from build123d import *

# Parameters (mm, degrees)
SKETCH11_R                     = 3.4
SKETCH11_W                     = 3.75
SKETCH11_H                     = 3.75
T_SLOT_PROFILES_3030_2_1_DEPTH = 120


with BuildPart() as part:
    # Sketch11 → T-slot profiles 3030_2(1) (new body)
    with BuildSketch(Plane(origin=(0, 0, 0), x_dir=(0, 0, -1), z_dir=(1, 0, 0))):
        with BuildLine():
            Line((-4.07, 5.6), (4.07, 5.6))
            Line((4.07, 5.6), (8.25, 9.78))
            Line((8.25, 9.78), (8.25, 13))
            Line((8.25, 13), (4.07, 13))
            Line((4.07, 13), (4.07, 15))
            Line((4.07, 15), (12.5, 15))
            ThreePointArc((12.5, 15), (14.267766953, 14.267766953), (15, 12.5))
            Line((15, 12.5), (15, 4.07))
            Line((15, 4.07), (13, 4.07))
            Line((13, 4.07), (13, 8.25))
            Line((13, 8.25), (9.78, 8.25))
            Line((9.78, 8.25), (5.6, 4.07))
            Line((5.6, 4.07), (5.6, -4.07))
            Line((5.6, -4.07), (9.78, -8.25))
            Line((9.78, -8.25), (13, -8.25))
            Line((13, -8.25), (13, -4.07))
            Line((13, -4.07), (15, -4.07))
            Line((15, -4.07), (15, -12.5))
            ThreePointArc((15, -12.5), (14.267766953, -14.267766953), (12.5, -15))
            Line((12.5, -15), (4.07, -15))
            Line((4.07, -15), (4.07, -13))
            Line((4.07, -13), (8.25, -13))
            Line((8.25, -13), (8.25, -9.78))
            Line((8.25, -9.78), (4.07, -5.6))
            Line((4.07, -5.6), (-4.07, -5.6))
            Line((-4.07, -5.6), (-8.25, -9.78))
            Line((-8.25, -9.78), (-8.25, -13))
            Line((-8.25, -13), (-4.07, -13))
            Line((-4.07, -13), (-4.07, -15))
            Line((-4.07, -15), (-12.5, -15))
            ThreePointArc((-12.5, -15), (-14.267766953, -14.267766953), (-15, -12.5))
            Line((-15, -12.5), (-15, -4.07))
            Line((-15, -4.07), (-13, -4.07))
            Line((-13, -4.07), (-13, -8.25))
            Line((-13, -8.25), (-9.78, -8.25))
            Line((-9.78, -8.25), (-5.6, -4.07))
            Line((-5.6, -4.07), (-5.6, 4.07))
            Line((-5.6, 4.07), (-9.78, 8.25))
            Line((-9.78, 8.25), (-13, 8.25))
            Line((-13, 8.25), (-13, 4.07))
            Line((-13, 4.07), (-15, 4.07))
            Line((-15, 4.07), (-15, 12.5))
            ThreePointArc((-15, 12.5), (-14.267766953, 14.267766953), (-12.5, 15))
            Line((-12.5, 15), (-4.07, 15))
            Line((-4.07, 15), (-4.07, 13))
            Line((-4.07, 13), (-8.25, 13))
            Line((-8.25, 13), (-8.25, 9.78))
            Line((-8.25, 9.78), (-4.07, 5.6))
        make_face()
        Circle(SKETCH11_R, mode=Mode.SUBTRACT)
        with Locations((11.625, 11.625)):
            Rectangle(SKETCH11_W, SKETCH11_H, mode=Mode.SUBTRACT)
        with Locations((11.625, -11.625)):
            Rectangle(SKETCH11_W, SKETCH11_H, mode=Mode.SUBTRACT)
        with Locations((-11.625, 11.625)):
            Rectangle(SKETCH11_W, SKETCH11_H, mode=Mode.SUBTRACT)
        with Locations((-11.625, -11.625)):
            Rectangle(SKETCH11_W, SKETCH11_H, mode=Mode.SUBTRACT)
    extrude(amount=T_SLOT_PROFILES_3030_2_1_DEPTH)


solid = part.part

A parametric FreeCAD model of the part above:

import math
import FreeCAD as App
import Part
import Sketcher
from FreeCAD import Vector

doc = App.newDocument("Part")
body = doc.addObject("PartDesign::Body", "Body")

# Sketch on YZ plane
sketch1 = body.newObject("Sketcher::SketchObject", "Sketch")
sketch1.AttachmentSupport = (doc.getObject("YZ_Plane"), [""])
sketch1.MapMode = "FlatFace"
sketch1.addGeometry(Part.LineSegment(Vector(5.6, -4.1, 0), Vector(5.6, 4.1, 0)), False)
sketch1.addGeometry(Part.LineSegment(Vector(5.6, 4.1, 0), Vector(9.8, 8.2, 0)), False)
sketch1.addGeometry(Part.LineSegment(Vector(9.8, 8.2, 0), Vector(13, 8.2, 0)), False)
sketch1.addGeometry(Part.LineSegment(Vector(13, 8.2, 0), Vector(13, 4.1, 0)), False)
sketch1.addGeometry(Part.LineSegment(Vector(13, 4.1, 0), Vector(15, 4.1, 0)), False)
sketch1.addGeometry(Part.LineSegment(Vector(15, 4.1, 0), Vector(15, 12.5, 0)), False)
sketch1.addGeometry(Part.ArcOfCircle(Part.Circle(Vector(12.5, 12.5, 0), Vector(0, 0, 1), 2.5), math.radians(0), math.radians(90)), False)
sketch1.addGeometry(Part.LineSegment(Vector(12.5, 15, 0), Vector(4.1, 15, 0)), False)
sketch1.addGeometry(Part.LineSegment(Vector(4.1, 15, 0), Vector(4.1, 13, 0)), False)
sketch1.addGeometry(Part.LineSegment(Vector(4.1, 13, 0), Vector(8.2, 13, 0)), False)
sketch1.addGeometry(Part.LineSegment(Vector(8.2, 13, 0), Vector(8.2, 9.8, 0)), False)
sketch1.addGeometry(Part.LineSegment(Vector(8.2, 9.8, 0), Vector(4.1, 5.6, 0)), False)
sketch1.addGeometry(Part.LineSegment(Vector(4.1, 5.6, 0), Vector(-4.1, 5.6, 0)), False)
sketch1.addGeometry(Part.LineSegment(Vector(-4.1, 5.6, 0), Vector(-8.2, 9.8, 0)), False)
sketch1.addGeometry(Part.LineSegment(Vector(-8.2, 9.8, 0), Vector(-8.2, 13, 0)), False)
sketch1.addGeometry(Part.LineSegment(Vector(-8.2, 13, 0), Vector(-4.1, 13, 0)), False)
sketch1.addGeometry(Part.LineSegment(Vector(-4.1, 13, 0), Vector(-4.1, 15, 0)), False)
sketch1.addGeometry(Part.LineSegment(Vector(-4.1, 15, 0), Vector(-12.5, 15, 0)), False)
sketch1.addGeometry(Part.ArcOfCircle(Part.Circle(Vector(-12.5, 12.5, 0), Vector(0, 0, 1), 2.5), math.radians(90), math.radians(180)), False)
sketch1.addGeometry(Part.LineSegment(Vector(-15, 12.5, 0), Vector(-15, 4.1, 0)), False)
sketch1.addGeometry(Part.LineSegment(Vector(-15, 4.1, 0), Vector(-13, 4.1, 0)), False)
sketch1.addGeometry(Part.LineSegment(Vector(-13, 4.1, 0), Vector(-13, 8.2, 0)), False)
sketch1.addGeometry(Part.LineSegment(Vector(-13, 8.2, 0), Vector(-9.8, 8.2, 0)), False)
sketch1.addGeometry(Part.LineSegment(Vector(-9.8, 8.2, 0), Vector(-5.6, 4.1, 0)), False)
sketch1.addGeometry(Part.LineSegment(Vector(-5.6, 4.1, 0), Vector(-5.6, -4.1, 0)), False)
sketch1.addGeometry(Part.LineSegment(Vector(-5.6, -4.1, 0), Vector(-9.8, -8.2, 0)), False)
sketch1.addGeometry(Part.LineSegment(Vector(-9.8, -8.2, 0), Vector(-13, -8.2, 0)), False)
sketch1.addGeometry(Part.LineSegment(Vector(-13, -8.2, 0), Vector(-13, -4.1, 0)), False)
sketch1.addGeometry(Part.LineSegment(Vector(-13, -4.1, 0), Vector(-15, -4.1, 0)), False)
sketch1.addGeometry(Part.LineSegment(Vector(-15, -4.1, 0), Vector(-15, -12.5, 0)), False)
sketch1.addGeometry(Part.ArcOfCircle(Part.Circle(Vector(-12.5, -12.5, 0), Vector(0, 0, 1), 2.5), math.radians(180), math.radians(270)), False)
sketch1.addGeometry(Part.LineSegment(Vector(-12.5, -15, 0), Vector(-4.1, -15, 0)), False)
sketch1.addGeometry(Part.LineSegment(Vector(-4.1, -15, 0), Vector(-4.1, -13, 0)), False)
sketch1.addGeometry(Part.LineSegment(Vector(-4.1, -13, 0), Vector(-8.2, -13, 0)), False)
sketch1.addGeometry(Part.LineSegment(Vector(-8.2, -13, 0), Vector(-8.2, -9.8, 0)), False)
sketch1.addGeometry(Part.LineSegment(Vector(-8.2, -9.8, 0), Vector(-4.1, -5.6, 0)), False)
sketch1.addGeometry(Part.LineSegment(Vector(-4.1, -5.6, 0), Vector(4.1, -5.6, 0)), False)
sketch1.addGeometry(Part.LineSegment(Vector(4.1, -5.6, 0), Vector(8.2, -9.8, 0)), False)
sketch1.addGeometry(Part.LineSegment(Vector(8.2, -9.8, 0), Vector(8.2, -13, 0)), False)
sketch1.addGeometry(Part.LineSegment(Vector(8.2, -13, 0), Vector(4.1, -13, 0)), False)
sketch1.addGeometry(Part.LineSegment(Vector(4.1, -13, 0), Vector(4.1, -15, 0)), False)
sketch1.addGeometry(Part.LineSegment(Vector(4.1, -15, 0), Vector(12.5, -15, 0)), False)
sketch1.addGeometry(Part.ArcOfCircle(Part.Circle(Vector(12.5, -12.5, 0), Vector(0, 0, 1), 2.5), math.radians(-90), math.radians(0)), False)
sketch1.addGeometry(Part.LineSegment(Vector(15, -12.5, 0), Vector(15, -4.1, 0)), False)
sketch1.addGeometry(Part.LineSegment(Vector(15, -4.1, 0), Vector(13, -4.1, 0)), False)
sketch1.addGeometry(Part.LineSegment(Vector(13, -4.1, 0), Vector(13, -8.2, 0)), False)
sketch1.addGeometry(Part.LineSegment(Vector(13, -8.2, 0), Vector(9.8, -8.2, 0)), False)
sketch1.addGeometry(Part.LineSegment(Vector(9.8, -8.2, 0), Vector(5.6, -4.1, 0)), False)
sketch1.addGeometry(Part.LineSegment(Vector(-13.5, -9.8, 0), Vector(-9.8, -9.8, 0)), False)
sketch1.addGeometry(Part.LineSegment(Vector(-9.8, -9.8, 0), Vector(-9.8, -13.5, 0)), False)
sketch1.addGeometry(Part.LineSegment(Vector(-9.8, -13.5, 0), Vector(-13.5, -13.5, 0)), False)
sketch1.addGeometry(Part.LineSegment(Vector(-13.5, -13.5, 0), Vector(-13.5, -9.8, 0)), False)
sketch1.addGeometry(Part.LineSegment(Vector(-13.5, 13.5, 0), Vector(-9.8, 13.5, 0)), False)
sketch1.addGeometry(Part.LineSegment(Vector(-9.8, 13.5, 0), Vector(-9.8, 9.8, 0)), False)
sketch1.addGeometry(Part.LineSegment(Vector(-9.8, 9.8, 0), Vector(-13.5, 9.8, 0)), False)
sketch1.addGeometry(Part.LineSegment(Vector(-13.5, 9.8, 0), Vector(-13.5, 13.5, 0)), False)
sketch1.addGeometry(Part.LineSegment(Vector(9.8, -9.8, 0), Vector(13.5, -9.8, 0)), False)
sketch1.addGeometry(Part.LineSegment(Vector(13.5, -9.8, 0), Vector(13.5, -13.5, 0)), False)
sketch1.addGeometry(Part.LineSegment(Vector(13.5, -13.5, 0), Vector(9.8, -13.5, 0)), False)
sketch1.addGeometry(Part.LineSegment(Vector(9.8, -13.5, 0), Vector(9.8, -9.8, 0)), False)
sketch1.addGeometry(Part.Circle(Vector(0, 0, 0), Vector(0, 0, 1), 3.4), False)
sketch1.addGeometry(Part.LineSegment(Vector(9.8, 13.5, 0), Vector(13.5, 13.5, 0)), False)
sketch1.addGeometry(Part.LineSegment(Vector(13.5, 13.5, 0), Vector(13.5, 9.8, 0)), False)
sketch1.addGeometry(Part.LineSegment(Vector(13.5, 9.8, 0), Vector(9.8, 9.8, 0)), False)
sketch1.addGeometry(Part.LineSegment(Vector(9.8, 9.8, 0), Vector(9.8, 13.5, 0)), False)
sketch1.addConstraint(Sketcher.Constraint("Coincident", 0, 2, 1, 1))
sketch1.addConstraint(Sketcher.Constraint("Coincident", 1, 2, 2, 1))
sketch1.addConstraint(Sketcher.Constraint("Coincident", 2, 2, 3, 1))
sketch1.addConstraint(Sketcher.Constraint("Coincident", 3, 2, 4, 1))
sketch1.addConstraint(Sketcher.Constraint("Coincident", 4, 2, 5, 1))
sketch1.addConstraint(Sketcher.Constraint("Tangent", 5, 2, 6, 1))
sketch1.addConstraint(Sketcher.Constraint("Tangent", 6, 2, 7, 1))
sketch1.addConstraint(Sketcher.Constraint("Coincident", 7, 2, 8, 1))
sketch1.addConstraint(Sketcher.Constraint("Coincident", 8, 2, 9, 1))
sketch1.addConstraint(Sketcher.Constraint("Coincident", 9, 2, 10, 1))
sketch1.addConstraint(Sketcher.Constraint("Coincident", 10, 2, 11, 1))
sketch1.addConstraint(Sketcher.Constraint("Coincident", 11, 2, 12, 1))
sketch1.addConstraint(Sketcher.Constraint("Coincident", 12, 2, 13, 1))
sketch1.addConstraint(Sketcher.Constraint("Coincident", 13, 2, 14, 1))
sketch1.addConstraint(Sketcher.Constraint("Coincident", 14, 2, 15, 1))
sketch1.addConstraint(Sketcher.Constraint("Coincident", 15, 2, 16, 1))
sketch1.addConstraint(Sketcher.Constraint("Coincident", 16, 2, 17, 1))
sketch1.addConstraint(Sketcher.Constraint("Tangent", 17, 2, 18, 1))
sketch1.addConstraint(Sketcher.Constraint("Tangent", 18, 2, 19, 1))
sketch1.addConstraint(Sketcher.Constraint("Coincident", 19, 2, 20, 1))
sketch1.addConstraint(Sketcher.Constraint("Coincident", 20, 2, 21, 1))
sketch1.addConstraint(Sketcher.Constraint("Coincident", 21, 2, 22, 1))
sketch1.addConstraint(Sketcher.Constraint("Coincident", 22, 2, 23, 1))
sketch1.addConstraint(Sketcher.Constraint("Coincident", 23, 2, 24, 1))
sketch1.addConstraint(Sketcher.Constraint("Coincident", 24, 2, 25, 1))
sketch1.addConstraint(Sketcher.Constraint("Coincident", 25, 2, 26, 1))
sketch1.addConstraint(Sketcher.Constraint("Coincident", 26, 2, 27, 1))
sketch1.addConstraint(Sketcher.Constraint("Coincident", 27, 2, 28, 1))
sketch1.addConstraint(Sketcher.Constraint("Coincident", 28, 2, 29, 1))
sketch1.addConstraint(Sketcher.Constraint("Tangent", 29, 2, 30, 1))
sketch1.addConstraint(Sketcher.Constraint("Tangent", 30, 2, 31, 1))
sketch1.addConstraint(Sketcher.Constraint("Coincident", 31, 2, 32, 1))
sketch1.addConstraint(Sketcher.Constraint("Coincident", 32, 2, 33, 1))
sketch1.addConstraint(Sketcher.Constraint("Coincident", 33, 2, 34, 1))
sketch1.addConstraint(Sketcher.Constraint("Coincident", 34, 2, 35, 1))
sketch1.addConstraint(Sketcher.Constraint("Coincident", 35, 2, 36, 1))
sketch1.addConstraint(Sketcher.Constraint("Coincident", 36, 2, 37, 1))
sketch1.addConstraint(Sketcher.Constraint("Coincident", 37, 2, 38, 1))
sketch1.addConstraint(Sketcher.Constraint("Coincident", 38, 2, 39, 1))
sketch1.addConstraint(Sketcher.Constraint("Coincident", 39, 2, 40, 1))
sketch1.addConstraint(Sketcher.Constraint("Coincident", 40, 2, 41, 1))
sketch1.addConstraint(Sketcher.Constraint("Tangent", 41, 2, 42, 1))
sketch1.addConstraint(Sketcher.Constraint("Tangent", 42, 2, 43, 1))
sketch1.addConstraint(Sketcher.Constraint("Coincident", 43, 2, 44, 1))
sketch1.addConstraint(Sketcher.Constraint("Coincident", 44, 2, 45, 1))
sketch1.addConstraint(Sketcher.Constraint("Coincident", 45, 2, 46, 1))
sketch1.addConstraint(Sketcher.Constraint("Coincident", 46, 2, 47, 1))
sketch1.addConstraint(Sketcher.Constraint("Coincident", 47, 2, 0, 1))
sketch1.addConstraint(Sketcher.Constraint("Coincident", 48, 2, 49, 1))
sketch1.addConstraint(Sketcher.Constraint("Coincident", 49, 2, 50, 1))
sketch1.addConstraint(Sketcher.Constraint("Coincident", 50, 2, 51, 1))
sketch1.addConstraint(Sketcher.Constraint("Coincident", 51, 2, 48, 1))
sketch1.addConstraint(Sketcher.Constraint("Coincident", 52, 2, 53, 1))
sketch1.addConstraint(Sketcher.Constraint("Coincident", 53, 2, 54, 1))
sketch1.addConstraint(Sketcher.Constraint("Coincident", 54, 2, 55, 1))
sketch1.addConstraint(Sketcher.Constraint("Coincident", 55, 2, 52, 1))
sketch1.addConstraint(Sketcher.Constraint("Coincident", 56, 2, 57, 1))
sketch1.addConstraint(Sketcher.Constraint("Coincident", 57, 2, 58, 1))
sketch1.addConstraint(Sketcher.Constraint("Coincident", 58, 2, 59, 1))
sketch1.addConstraint(Sketcher.Constraint("Coincident", 59, 2, 56, 1))
sketch1.addConstraint(Sketcher.Constraint("Coincident", 61, 2, 62, 1))
sketch1.addConstraint(Sketcher.Constraint("Coincident", 62, 2, 63, 1))
sketch1.addConstraint(Sketcher.Constraint("Coincident", 63, 2, 64, 1))
sketch1.addConstraint(Sketcher.Constraint("Coincident", 64, 2, 61, 1))
sketch1.addConstraint(Sketcher.Constraint("Vertical", 0))
sketch1.addConstraint(Sketcher.Constraint("Horizontal", 2))
sketch1.addConstraint(Sketcher.Constraint("Vertical", 3))
sketch1.addConstraint(Sketcher.Constraint("Horizontal", 4))
sketch1.addConstraint(Sketcher.Constraint("Vertical", 5))
sketch1.addConstraint(Sketcher.Constraint("Horizontal", 7))
sketch1.addConstraint(Sketcher.Constraint("Vertical", 8))
sketch1.addConstraint(Sketcher.Constraint("Horizontal", 9))
sketch1.addConstraint(Sketcher.Constraint("Vertical", 10))
sketch1.addConstraint(Sketcher.Constraint("Horizontal", 12))
sketch1.addConstraint(Sketcher.Constraint("Vertical", 14))
sketch1.addConstraint(Sketcher.Constraint("Horizontal", 15))
sketch1.addConstraint(Sketcher.Constraint("Vertical", 16))
sketch1.addConstraint(Sketcher.Constraint("Horizontal", 17))
sketch1.addConstraint(Sketcher.Constraint("Vertical", 19))
sketch1.addConstraint(Sketcher.Constraint("Horizontal", 20))
sketch1.addConstraint(Sketcher.Constraint("Vertical", 21))
sketch1.addConstraint(Sketcher.Constraint("Horizontal", 22))
sketch1.addConstraint(Sketcher.Constraint("Vertical", 24))
sketch1.addConstraint(Sketcher.Constraint("Horizontal", 26))
sketch1.addConstraint(Sketcher.Constraint("Vertical", 27))
sketch1.addConstraint(Sketcher.Constraint("Horizontal", 28))
sketch1.addConstraint(Sketcher.Constraint("Vertical", 29))
sketch1.addConstraint(Sketcher.Constraint("Horizontal", 31))
sketch1.addConstraint(Sketcher.Constraint("Vertical", 32))
sketch1.addConstraint(Sketcher.Constraint("Horizontal", 33))
sketch1.addConstraint(Sketcher.Constraint("Vertical", 34))
sketch1.addConstraint(Sketcher.Constraint("Horizontal", 36))
sketch1.addConstraint(Sketcher.Constraint("Vertical", 38))
sketch1.addConstraint(Sketcher.Constraint("Horizontal", 39))
sketch1.addConstraint(Sketcher.Constraint("Vertical", 40))
sketch1.addConstraint(Sketcher.Constraint("Horizontal", 41))
sketch1.addConstraint(Sketcher.Constraint("Vertical", 43))
sketch1.addConstraint(Sketcher.Constraint("Horizontal", 44))
sketch1.addConstraint(Sketcher.Constraint("Vertical", 45))
sketch1.addConstraint(Sketcher.Constraint("Horizontal", 46))
sketch1.addConstraint(Sketcher.Constraint("Horizontal", 48))
sketch1.addConstraint(Sketcher.Constraint("Vertical", 49))
sketch1.addConstraint(Sketcher.Constraint("Horizontal", 50))
sketch1.addConstraint(Sketcher.Constraint("Vertical", 51))
sketch1.addConstraint(Sketcher.Constraint("Horizontal", 52))
sketch1.addConstraint(Sketcher.Constraint("Vertical", 53))
sketch1.addConstraint(Sketcher.Constraint("Horizontal", 54))
sketch1.addConstraint(Sketcher.Constraint("Vertical", 55))
sketch1.addConstraint(Sketcher.Constraint("Horizontal", 56))
sketch1.addConstraint(Sketcher.Constraint("Vertical", 57))
sketch1.addConstraint(Sketcher.Constraint("Horizontal", 58))
sketch1.addConstraint(Sketcher.Constraint("Vertical", 59))
sketch1.addConstraint(Sketcher.Constraint("Horizontal", 61))
sketch1.addConstraint(Sketcher.Constraint("Vertical", 62))
sketch1.addConstraint(Sketcher.Constraint("Horizontal", 63))
sketch1.addConstraint(Sketcher.Constraint("Vertical", 64))
sketch1.addConstraint(Sketcher.Constraint("Coincident", 60, 3, -1, 1))
sketch1.addConstraint(Sketcher.Constraint("Equal", 6, 18))
sketch1.addConstraint(Sketcher.Constraint("Equal", 18, 30))
sketch1.addConstraint(Sketcher.Constraint("Equal", 30, 42))
sketch1.addConstraint(Sketcher.Constraint("Symmetric", 6, 3, 30, 3, -1, 1))
sketch1.addConstraint(Sketcher.Constraint("Symmetric", 18, 3, 42, 3, -1, 1))
sketch1.addConstraint(Sketcher.Constraint("Symmetric", 0, 2, 24, 2, -1, 1))
sketch1.addConstraint(Sketcher.Constraint("Symmetric", 1, 2, 25, 2, -1, 1))
sketch1.addConstraint(Sketcher.Constraint("Symmetric", 3, 2, 27, 2, -1, 1))
sketch1.addConstraint(Sketcher.Constraint("Symmetric", 8, 2, 32, 2, -1, 1))
sketch1.addConstraint(Sketcher.Constraint("Symmetric", 10, 2, 34, 2, -1, 1))
sketch1.addConstraint(Sketcher.Constraint("Symmetric", 11, 2, 35, 2, -1, 1))
sketch1.addConstraint(Sketcher.Constraint("Symmetric", 13, 2, 37, 2, -1, 1))
sketch1.addConstraint(Sketcher.Constraint("Symmetric", 15, 2, 39, 2, -1, 1))
sketch1.addConstraint(Sketcher.Constraint("Symmetric", 20, 2, 44, 2, -1, 1))
sketch1.addConstraint(Sketcher.Constraint("Symmetric", 22, 2, 46, 2, -1, 1))
sketch1.addConstraint(Sketcher.Constraint("Symmetric", 54, 2, 56, 2, -1, 1))
sketch1.addConstraint(Sketcher.Constraint("Symmetric", 52, 2, 58, 2, -1, 1))
sketch1.addConstraint(Sketcher.Constraint("Symmetric", 50, 2, 61, 2, -1, 1))
sketch1.addConstraint(Sketcher.Constraint("Symmetric", 48, 2, 63, 2, -1, 1))
sketch1.addConstraint(Sketcher.Constraint("Symmetric", 6, 3, 18, 3, -2))
sketch1.addConstraint(Sketcher.Constraint("Symmetric", 10, 2, 13, 2, -2))
sketch1.addConstraint(Sketcher.Constraint("Symmetric", 8, 2, 15, 2, -2))
sketch1.addConstraint(Sketcher.Constraint("Symmetric", 3, 2, 20, 2, -2))
sketch1.addConstraint(Sketcher.Constraint("Symmetric", 1, 2, 22, 2, -2))
sketch1.addConstraint(Sketcher.Constraint("Symmetric", 51, 2, 56, 2, -2))
sketch1.addConstraint(Sketcher.Constraint("Symmetric", 49, 2, 58, 2, -2))
sketch1.addConstraint(Sketcher.Constraint("Parallel", 1, 11))
sketch1.addConstraint(Sketcher.Constraint("Perpendicular", 11, 13))
sketch1.addConstraint(Sketcher.Constraint("Parallel", 13, 23))
sketch1.addConstraint(Sketcher.Constraint("Perpendicular", 35, 37))
sketch1.addConstraint(Sketcher.Constraint("Parallel", 37, 47))
sketch1.addConstraint(Sketcher.Constraint("Horizontal", 0, 2, 3, 2))
sketch1.addConstraint(Sketcher.Constraint("Horizontal", 20, 2, 23, 2))
sketch1.addConstraint(Sketcher.Constraint("Vertical", 8, 2, 11, 2))
sketch1.addConstraint(Sketcher.Constraint("Equal", 36, 0))
sketch1.addConstraint(Sketcher.Constraint("Equal", 39, 3))
sketch1.addConstraint(Sketcher.Constraint("Equal", 41, 5))
sketch1.addConstraint(Sketcher.Constraint("Equal", 44, 8))
sketch1.addConstraint(Sketcher.Constraint("Equal", 46, 10))
sketch1.addConstraint(Sketcher.Constraint("Equal", 63, 49))
sketch1.addConstraint(Sketcher.Constraint("Diameter", 60, 6.8))
sketch1.addConstraint(Sketcher.Constraint("Radius", 6, 2.5))
sketch1.addConstraint(Sketcher.Constraint("DistanceX", 4, 1, 4, 2, 2.0))
sketch1.addConstraint(Sketcher.Constraint("DistanceX", -1, 1, 2, 2, 13.0))
sketch1.addConstraint(Sketcher.Constraint("DistanceX", 2, 1, 2, 2, 3.22))
sketch1.addConstraint(Sketcher.Constraint("DistanceX", 7, 2, 7, 1, 8.43))
sketch1.addConstraint(Sketcher.Constraint("DistanceX", 9, 1, 9, 2, 4.18))
sketch1.addConstraint(Sketcher.Constraint("DistanceX", 48, 1, 48, 2, 3.75))
sketch1.addConstraint(Sketcher.Constraint("DistanceY", 49, 2, -1, 1, 13.5))
sketch1.addConstraint(Sketcher.Constraint("DistanceX", 50, 2, -1, 1, 13.5))
pad1 = body.newObject("PartDesign::Pad", "Pad")
pad1.Profile = sketch1
pad1.Length = 120

doc.recompute()
